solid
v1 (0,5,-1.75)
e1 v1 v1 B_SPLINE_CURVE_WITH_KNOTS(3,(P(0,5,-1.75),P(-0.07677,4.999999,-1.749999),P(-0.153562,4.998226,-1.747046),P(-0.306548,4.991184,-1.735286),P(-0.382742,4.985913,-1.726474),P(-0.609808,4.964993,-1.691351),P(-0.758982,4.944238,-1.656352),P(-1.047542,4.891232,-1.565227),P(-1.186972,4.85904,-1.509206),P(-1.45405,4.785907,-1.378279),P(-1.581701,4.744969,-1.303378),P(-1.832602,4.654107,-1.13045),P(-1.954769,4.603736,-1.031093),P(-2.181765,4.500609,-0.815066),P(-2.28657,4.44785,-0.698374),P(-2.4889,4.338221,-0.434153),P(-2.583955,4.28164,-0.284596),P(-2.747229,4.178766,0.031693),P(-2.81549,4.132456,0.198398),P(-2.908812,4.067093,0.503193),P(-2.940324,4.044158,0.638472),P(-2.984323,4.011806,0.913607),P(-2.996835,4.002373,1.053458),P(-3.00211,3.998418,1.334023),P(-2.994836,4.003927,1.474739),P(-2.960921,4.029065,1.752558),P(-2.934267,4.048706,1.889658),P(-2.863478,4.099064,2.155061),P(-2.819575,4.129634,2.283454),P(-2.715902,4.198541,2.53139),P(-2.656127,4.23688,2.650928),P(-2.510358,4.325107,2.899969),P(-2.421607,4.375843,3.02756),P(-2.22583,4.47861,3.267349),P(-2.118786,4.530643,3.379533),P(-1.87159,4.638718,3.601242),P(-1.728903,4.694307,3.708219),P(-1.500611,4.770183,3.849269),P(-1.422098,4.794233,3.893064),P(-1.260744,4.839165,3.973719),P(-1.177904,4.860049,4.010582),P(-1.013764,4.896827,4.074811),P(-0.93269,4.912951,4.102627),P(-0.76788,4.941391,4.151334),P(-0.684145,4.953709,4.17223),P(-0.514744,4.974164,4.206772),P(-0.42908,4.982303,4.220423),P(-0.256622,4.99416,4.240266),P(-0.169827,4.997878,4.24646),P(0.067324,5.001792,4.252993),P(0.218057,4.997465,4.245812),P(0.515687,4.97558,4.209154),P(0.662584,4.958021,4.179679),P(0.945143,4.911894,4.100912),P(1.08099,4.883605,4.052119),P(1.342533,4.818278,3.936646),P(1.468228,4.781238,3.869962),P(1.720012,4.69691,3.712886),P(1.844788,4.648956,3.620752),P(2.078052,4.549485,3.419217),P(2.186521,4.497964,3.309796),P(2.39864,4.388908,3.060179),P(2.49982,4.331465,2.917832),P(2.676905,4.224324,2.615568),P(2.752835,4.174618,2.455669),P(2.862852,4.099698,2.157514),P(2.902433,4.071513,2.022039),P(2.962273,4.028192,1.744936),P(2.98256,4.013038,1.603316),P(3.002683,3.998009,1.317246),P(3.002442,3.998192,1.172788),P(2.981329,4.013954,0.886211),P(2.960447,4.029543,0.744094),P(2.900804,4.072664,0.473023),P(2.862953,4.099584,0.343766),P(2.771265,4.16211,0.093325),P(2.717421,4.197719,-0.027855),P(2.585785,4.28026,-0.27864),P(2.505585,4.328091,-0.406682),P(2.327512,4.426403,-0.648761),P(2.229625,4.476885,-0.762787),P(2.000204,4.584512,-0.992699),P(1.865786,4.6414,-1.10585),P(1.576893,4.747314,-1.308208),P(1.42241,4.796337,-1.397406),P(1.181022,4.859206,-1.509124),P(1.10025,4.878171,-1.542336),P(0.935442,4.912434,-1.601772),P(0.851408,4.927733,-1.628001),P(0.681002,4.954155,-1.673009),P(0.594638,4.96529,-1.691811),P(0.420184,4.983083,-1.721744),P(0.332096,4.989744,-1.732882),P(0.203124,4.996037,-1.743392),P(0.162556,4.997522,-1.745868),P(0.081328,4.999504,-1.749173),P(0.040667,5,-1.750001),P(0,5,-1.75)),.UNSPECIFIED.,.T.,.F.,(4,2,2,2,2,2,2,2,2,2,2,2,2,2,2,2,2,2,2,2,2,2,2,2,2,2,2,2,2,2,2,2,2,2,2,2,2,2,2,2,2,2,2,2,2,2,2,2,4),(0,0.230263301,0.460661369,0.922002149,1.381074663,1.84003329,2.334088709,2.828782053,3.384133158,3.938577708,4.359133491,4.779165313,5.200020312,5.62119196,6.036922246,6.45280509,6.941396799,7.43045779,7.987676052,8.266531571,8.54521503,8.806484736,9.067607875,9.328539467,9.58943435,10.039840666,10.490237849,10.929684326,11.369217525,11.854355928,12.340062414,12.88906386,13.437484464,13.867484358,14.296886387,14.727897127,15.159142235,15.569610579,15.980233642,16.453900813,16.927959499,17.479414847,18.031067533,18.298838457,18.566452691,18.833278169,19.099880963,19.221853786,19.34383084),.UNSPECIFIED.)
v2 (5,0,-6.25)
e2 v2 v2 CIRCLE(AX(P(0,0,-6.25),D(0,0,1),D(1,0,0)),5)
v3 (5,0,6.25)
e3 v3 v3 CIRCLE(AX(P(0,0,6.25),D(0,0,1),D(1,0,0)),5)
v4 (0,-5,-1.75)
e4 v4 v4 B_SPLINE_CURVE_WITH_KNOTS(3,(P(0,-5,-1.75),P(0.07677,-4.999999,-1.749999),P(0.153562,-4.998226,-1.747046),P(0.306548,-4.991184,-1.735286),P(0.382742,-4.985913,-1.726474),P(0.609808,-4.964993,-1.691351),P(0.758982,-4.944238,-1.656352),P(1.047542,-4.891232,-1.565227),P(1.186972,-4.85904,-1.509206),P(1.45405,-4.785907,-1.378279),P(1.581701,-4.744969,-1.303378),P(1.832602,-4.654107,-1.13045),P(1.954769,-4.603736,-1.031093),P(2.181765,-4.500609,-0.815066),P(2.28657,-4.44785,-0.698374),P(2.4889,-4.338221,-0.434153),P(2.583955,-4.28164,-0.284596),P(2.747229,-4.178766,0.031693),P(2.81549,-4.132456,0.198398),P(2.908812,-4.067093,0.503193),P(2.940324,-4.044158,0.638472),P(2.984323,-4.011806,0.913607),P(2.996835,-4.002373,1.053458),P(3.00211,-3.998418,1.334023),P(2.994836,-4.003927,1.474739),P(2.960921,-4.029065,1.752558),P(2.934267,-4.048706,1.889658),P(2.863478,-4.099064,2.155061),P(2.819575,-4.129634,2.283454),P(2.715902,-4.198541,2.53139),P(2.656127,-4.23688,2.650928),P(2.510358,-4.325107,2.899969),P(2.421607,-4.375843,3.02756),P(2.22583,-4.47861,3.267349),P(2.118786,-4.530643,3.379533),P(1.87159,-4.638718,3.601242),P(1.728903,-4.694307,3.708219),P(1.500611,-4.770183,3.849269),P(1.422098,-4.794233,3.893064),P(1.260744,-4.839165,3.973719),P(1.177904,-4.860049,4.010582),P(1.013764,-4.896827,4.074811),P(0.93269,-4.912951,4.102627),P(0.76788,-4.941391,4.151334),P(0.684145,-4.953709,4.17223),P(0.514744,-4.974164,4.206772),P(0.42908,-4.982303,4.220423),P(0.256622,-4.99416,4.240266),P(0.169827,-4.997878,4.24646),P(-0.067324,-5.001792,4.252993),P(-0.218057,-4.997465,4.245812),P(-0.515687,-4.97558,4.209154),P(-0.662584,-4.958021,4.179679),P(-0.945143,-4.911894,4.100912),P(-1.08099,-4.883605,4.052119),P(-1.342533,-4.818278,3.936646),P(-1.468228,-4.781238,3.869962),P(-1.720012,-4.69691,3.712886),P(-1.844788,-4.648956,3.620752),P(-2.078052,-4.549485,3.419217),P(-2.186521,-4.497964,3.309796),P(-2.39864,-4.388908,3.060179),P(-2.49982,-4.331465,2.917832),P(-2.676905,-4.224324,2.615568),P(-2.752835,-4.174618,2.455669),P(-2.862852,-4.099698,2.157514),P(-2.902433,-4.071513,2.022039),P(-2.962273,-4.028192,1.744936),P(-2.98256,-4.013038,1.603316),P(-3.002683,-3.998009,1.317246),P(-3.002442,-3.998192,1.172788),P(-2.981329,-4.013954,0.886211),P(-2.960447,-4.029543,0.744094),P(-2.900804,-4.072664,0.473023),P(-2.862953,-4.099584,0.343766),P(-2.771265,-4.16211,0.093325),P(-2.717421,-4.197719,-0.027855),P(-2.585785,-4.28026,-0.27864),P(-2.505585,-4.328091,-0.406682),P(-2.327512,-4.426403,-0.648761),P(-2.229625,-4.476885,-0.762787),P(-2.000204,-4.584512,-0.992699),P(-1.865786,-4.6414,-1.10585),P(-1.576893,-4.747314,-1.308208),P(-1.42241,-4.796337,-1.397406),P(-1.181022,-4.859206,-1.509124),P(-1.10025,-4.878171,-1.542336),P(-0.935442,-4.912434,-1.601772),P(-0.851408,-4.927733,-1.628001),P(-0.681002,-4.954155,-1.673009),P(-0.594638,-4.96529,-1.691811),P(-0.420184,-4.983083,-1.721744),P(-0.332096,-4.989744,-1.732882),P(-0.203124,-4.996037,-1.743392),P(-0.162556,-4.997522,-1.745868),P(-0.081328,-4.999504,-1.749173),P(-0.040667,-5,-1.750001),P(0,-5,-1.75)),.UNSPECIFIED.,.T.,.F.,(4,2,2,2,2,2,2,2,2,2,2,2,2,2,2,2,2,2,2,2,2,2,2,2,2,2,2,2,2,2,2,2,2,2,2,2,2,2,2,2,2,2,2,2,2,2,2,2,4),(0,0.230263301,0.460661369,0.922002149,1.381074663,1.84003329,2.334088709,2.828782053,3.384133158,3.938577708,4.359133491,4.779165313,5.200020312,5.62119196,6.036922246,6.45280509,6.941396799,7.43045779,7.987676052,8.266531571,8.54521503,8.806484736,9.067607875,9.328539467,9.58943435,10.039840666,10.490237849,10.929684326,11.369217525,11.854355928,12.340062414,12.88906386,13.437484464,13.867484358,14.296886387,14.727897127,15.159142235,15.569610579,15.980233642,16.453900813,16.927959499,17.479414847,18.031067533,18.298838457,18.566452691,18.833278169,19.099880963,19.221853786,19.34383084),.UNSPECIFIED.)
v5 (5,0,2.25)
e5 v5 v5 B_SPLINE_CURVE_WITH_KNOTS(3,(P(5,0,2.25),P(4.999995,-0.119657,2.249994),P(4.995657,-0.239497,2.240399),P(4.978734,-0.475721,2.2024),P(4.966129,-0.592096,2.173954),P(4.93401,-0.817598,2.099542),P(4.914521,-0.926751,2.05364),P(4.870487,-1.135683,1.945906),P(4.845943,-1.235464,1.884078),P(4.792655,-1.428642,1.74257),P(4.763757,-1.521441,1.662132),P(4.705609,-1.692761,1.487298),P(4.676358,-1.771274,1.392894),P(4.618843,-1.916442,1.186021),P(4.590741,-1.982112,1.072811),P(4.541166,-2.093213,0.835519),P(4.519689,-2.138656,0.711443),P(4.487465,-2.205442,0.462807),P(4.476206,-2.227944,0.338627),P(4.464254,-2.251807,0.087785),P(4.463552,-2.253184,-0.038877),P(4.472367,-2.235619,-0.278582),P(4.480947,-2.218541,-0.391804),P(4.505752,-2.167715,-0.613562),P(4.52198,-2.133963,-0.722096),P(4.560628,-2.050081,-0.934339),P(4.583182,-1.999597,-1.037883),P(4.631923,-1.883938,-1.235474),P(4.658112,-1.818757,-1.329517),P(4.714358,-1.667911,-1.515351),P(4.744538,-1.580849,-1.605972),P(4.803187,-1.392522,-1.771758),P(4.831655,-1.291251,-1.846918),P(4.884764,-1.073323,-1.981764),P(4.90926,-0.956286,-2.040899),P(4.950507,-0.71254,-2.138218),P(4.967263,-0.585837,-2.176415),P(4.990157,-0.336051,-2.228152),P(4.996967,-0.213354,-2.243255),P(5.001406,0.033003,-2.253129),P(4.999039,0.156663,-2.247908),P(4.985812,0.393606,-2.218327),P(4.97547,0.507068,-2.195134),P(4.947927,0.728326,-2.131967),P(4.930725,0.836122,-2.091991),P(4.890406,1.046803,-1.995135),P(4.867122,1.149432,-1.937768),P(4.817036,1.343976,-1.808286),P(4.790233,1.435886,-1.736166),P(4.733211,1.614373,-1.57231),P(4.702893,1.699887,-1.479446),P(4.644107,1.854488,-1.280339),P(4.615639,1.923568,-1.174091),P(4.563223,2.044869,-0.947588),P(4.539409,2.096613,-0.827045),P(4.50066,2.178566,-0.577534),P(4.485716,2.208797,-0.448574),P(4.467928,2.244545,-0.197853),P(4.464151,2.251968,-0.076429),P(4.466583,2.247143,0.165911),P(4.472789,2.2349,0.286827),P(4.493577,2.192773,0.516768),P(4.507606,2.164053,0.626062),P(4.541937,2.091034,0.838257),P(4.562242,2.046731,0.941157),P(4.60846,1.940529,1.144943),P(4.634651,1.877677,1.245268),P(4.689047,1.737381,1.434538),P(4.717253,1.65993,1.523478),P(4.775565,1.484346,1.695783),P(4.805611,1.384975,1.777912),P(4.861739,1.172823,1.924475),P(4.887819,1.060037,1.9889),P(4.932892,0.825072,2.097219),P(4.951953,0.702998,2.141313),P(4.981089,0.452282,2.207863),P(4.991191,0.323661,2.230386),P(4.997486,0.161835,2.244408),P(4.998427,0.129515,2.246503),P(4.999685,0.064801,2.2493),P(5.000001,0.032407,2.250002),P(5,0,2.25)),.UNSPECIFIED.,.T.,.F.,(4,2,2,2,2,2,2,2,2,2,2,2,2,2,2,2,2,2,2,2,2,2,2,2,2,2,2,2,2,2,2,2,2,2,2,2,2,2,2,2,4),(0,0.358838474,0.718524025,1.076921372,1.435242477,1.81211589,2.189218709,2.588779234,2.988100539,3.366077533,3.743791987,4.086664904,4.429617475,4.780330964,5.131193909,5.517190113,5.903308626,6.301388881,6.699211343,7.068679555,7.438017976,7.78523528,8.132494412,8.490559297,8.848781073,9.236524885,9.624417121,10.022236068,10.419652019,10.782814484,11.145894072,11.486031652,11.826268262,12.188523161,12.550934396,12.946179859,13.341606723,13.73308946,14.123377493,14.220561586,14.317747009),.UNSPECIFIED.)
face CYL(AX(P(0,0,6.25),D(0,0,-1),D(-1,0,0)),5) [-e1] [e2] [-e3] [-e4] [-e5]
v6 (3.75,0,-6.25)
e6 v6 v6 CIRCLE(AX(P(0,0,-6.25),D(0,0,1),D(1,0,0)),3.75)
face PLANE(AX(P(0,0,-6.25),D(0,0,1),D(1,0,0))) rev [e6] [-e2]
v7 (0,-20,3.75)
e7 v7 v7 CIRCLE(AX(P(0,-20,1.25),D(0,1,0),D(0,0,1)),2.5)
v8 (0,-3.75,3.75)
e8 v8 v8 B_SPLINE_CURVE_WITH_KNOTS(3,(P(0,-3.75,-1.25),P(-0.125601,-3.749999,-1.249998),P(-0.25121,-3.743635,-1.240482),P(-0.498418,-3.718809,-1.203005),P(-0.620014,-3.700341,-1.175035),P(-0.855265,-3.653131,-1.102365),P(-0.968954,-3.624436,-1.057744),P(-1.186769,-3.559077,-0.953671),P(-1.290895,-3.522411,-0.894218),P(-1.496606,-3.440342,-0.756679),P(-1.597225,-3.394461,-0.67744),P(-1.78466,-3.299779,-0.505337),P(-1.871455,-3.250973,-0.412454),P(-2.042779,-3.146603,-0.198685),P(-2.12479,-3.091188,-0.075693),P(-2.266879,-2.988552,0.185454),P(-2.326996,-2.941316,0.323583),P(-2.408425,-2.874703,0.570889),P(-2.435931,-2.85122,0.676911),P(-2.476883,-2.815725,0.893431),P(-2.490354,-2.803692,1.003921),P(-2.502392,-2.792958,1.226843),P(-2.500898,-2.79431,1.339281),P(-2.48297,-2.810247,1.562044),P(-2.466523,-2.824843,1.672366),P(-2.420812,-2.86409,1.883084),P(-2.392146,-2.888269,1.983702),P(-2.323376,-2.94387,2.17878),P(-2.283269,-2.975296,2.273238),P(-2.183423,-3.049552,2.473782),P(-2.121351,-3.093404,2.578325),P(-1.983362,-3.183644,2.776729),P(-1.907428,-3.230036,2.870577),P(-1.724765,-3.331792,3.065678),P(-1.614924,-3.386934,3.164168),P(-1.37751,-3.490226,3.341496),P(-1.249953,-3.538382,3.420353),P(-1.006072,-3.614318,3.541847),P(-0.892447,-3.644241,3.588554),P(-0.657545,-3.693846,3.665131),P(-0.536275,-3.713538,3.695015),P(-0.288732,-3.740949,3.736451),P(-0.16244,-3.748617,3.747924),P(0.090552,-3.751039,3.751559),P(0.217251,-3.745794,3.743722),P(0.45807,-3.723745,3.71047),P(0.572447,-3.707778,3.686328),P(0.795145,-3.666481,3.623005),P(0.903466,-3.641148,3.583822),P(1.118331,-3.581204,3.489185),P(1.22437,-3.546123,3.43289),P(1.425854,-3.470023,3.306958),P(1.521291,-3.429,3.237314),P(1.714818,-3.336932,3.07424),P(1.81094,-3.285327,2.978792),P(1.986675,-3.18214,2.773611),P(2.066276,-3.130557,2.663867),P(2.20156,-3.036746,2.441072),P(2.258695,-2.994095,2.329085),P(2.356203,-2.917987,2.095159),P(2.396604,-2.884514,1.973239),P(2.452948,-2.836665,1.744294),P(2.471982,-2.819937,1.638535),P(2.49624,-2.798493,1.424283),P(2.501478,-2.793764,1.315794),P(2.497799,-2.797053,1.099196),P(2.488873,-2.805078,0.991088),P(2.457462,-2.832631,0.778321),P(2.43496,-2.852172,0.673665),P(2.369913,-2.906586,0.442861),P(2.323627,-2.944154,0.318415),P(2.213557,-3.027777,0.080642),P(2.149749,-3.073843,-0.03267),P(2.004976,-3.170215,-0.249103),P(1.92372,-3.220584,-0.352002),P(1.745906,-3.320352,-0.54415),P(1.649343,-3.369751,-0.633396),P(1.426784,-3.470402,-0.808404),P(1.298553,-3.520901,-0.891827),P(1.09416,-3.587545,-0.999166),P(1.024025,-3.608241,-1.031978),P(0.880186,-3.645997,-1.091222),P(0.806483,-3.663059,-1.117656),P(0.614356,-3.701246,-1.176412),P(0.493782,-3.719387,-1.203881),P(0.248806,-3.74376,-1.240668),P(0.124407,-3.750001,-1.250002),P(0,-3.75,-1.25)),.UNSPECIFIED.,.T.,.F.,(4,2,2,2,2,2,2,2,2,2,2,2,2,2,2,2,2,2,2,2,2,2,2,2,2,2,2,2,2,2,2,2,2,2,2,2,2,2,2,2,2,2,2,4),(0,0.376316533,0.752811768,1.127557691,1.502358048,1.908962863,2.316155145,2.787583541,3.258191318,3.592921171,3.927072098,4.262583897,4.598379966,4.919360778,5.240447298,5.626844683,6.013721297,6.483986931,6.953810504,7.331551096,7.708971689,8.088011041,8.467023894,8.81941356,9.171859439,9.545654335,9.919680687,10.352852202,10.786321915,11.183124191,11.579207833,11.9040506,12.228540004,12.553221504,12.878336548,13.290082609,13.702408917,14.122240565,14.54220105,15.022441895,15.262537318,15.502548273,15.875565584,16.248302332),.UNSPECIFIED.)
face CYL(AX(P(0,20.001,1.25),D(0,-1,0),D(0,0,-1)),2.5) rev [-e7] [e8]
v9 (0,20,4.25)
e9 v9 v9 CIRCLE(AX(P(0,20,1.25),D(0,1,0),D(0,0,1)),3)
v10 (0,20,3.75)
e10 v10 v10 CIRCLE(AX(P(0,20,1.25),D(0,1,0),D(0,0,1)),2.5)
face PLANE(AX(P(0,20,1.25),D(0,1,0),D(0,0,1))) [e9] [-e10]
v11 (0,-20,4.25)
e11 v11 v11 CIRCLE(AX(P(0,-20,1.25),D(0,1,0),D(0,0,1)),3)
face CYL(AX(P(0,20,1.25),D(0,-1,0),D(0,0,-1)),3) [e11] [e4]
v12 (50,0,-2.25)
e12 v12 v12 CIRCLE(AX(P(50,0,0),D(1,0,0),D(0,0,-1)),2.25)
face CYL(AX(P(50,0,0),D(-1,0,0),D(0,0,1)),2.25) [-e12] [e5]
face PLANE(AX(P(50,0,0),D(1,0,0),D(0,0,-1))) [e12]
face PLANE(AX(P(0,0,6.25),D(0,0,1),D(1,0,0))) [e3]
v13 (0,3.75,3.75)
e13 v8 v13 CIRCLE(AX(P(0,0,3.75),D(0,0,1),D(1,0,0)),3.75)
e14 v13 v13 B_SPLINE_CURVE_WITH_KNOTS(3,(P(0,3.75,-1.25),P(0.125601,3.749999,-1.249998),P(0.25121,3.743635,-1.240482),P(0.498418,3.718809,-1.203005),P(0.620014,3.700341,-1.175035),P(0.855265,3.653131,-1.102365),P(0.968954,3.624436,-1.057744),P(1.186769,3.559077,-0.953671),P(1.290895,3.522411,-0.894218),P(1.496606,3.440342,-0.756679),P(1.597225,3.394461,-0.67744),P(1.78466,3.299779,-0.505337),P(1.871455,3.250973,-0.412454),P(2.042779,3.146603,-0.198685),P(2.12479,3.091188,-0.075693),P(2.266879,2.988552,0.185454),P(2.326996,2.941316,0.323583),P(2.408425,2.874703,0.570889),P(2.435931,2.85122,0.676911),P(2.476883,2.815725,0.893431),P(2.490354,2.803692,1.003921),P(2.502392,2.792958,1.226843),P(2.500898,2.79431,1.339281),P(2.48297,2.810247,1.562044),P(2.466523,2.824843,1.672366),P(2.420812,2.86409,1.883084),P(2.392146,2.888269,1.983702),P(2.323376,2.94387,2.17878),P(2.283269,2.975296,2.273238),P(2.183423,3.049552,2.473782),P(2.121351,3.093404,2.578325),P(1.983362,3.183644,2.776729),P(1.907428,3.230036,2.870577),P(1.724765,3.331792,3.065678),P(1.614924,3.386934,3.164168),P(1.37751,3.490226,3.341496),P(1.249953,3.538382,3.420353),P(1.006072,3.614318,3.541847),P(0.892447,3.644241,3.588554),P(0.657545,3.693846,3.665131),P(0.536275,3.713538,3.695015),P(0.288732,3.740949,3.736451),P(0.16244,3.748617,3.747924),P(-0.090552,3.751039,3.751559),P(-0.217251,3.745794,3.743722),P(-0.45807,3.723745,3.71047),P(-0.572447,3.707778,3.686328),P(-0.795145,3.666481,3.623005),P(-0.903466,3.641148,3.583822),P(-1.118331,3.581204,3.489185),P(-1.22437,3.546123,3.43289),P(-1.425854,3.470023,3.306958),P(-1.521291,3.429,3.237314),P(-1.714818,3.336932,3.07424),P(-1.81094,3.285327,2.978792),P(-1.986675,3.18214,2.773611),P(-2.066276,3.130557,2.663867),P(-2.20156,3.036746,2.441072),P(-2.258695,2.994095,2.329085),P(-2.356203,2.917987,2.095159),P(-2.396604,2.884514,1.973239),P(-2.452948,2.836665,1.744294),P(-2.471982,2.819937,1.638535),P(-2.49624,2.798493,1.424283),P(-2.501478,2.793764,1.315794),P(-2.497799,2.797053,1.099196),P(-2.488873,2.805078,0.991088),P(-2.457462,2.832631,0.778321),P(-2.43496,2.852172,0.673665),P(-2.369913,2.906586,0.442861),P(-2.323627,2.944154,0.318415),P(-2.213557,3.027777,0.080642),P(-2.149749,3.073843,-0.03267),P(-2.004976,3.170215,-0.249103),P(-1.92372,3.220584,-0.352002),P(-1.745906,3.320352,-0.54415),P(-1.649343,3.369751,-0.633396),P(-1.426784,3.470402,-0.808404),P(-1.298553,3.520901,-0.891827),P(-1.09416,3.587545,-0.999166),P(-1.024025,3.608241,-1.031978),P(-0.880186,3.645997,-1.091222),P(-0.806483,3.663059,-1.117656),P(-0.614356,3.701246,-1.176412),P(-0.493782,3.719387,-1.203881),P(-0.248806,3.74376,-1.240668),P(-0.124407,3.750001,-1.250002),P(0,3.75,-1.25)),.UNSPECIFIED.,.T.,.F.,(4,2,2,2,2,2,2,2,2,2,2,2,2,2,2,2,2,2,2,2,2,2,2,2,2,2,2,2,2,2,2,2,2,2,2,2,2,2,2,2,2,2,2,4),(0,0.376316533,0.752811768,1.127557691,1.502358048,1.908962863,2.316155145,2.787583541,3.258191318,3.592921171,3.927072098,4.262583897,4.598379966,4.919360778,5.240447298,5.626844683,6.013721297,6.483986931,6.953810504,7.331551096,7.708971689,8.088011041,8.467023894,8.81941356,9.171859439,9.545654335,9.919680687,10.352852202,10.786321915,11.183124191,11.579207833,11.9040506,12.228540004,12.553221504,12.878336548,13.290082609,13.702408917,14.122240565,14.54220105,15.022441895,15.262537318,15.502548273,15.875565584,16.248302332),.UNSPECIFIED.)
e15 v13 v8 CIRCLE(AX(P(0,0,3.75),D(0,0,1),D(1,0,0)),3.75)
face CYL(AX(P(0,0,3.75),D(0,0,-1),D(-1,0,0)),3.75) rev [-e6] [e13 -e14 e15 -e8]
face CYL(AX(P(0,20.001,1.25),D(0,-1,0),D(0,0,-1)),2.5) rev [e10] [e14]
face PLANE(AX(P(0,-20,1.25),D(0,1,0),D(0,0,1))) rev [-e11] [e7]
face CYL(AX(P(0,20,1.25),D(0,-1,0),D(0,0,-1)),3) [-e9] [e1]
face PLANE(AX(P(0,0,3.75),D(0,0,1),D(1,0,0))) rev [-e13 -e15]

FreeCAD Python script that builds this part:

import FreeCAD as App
import Part
import Sketcher
from FreeCAD import Vector

doc = App.newDocument("Part")
body = doc.addObject("PartDesign::Body", "Body")

# Sketch on XY plane
sketch1 = body.newObject("Sketcher::SketchObject", "Sketch")
sketch1.AttachmentSupport = (doc.getObject("XY_Plane"), [""])
sketch1.MapMode = "FlatFace"
sketch1.addGeometry(Part.Circle(Vector(0, 0, 0), Vector(0, 0, 1), 5), False)
sketch1.addConstraint(Sketcher.Constraint("Coincident", 0, 3, -1, 1))
sketch1.addConstraint(Sketcher.Constraint("Diameter", 0, 10.0))
pad1 = body.newObject("PartDesign::Pad", "Pad")
pad1.Profile = sketch1
pad1.Length = 12.5
pad1.Midplane = True

# Sketch on XZ plane
sketch2 = body.newObject("Sketcher::SketchObject", "Sketch001")
sketch2.AttachmentSupport = (doc.getObject("XZ_Plane"), [""])
sketch2.MapMode = "FlatFace"
sketch2.addGeometry(Part.Circle(Vector(0, 1.2, 0), Vector(0, 0, 1), 3), False)
sketch2.addConstraint(Sketcher.Constraint("PointOnObject", 0, 3, -2))
sketch2.addConstraint(Sketcher.Constraint("Diameter", 0, 6.0))
sketch2.addConstraint(Sketcher.Constraint("DistanceY", -1, 1, 0, 3, 1.25))
pad2 = body.newObject("PartDesign::Pad", "Pad001")
pad2.Profile = sketch2
pad2.Length = 40
pad2.Midplane = True

# Sketch on YZ plane
sketch3 = body.newObject("Sketcher::SketchObject", "Sketch002")
sketch3.AttachmentSupport = (doc.getObject("YZ_Plane"), [""])
sketch3.MapMode = "FlatFace"
sketch3.addGeometry(Part.Circle(Vector(0, 0, 0), Vector(0, 0, 1), 2.2), False)
sketch3.addConstraint(Sketcher.Constraint("Coincident", 0, 3, -1, 1))
sketch3.addConstraint(Sketcher.Constraint("Diameter", 0, 4.5))
pad3 = body.newObject("PartDesign::Pad", "Pad002")
pad3.Profile = sketch3
pad3.Length = 50

# Sketch on XZ plane
sketch4 = body.newObject("Sketcher::SketchObject", "Sketch003")
sketch4.AttachmentSupport = (doc.getObject("XZ_Plane"), [""])
sketch4.MapMode = "FlatFace"
sketch4.AttachmentOffset = App.Placement(Vector(0, 0, 20), App.Rotation())
sketch4.addGeometry(Part.Circle(Vector(0, 1.2, 0), Vector(0, 0, 1), 2.5), False)
sketch4.addConstraint(Sketcher.Constraint("PointOnObject", 0, 3, -2))
sketch4.addConstraint(Sketcher.Constraint("Diameter", 0, 5.0))
sketch4.addConstraint(Sketcher.Constraint("DistanceY", -1, 1, 0, 3, 1.25))
pocket1 = body.newObject("PartDesign::Pocket", "Pocket")
pocket1.Profile = sketch4
pocket1.Length = 40

# Sketch on XY plane
sketch5 = body.newObject("Sketcher::SketchObject", "Sketch004")
sketch5.AttachmentSupport = (doc.getObject("XY_Plane"), [""])
sketch5.MapMode = "FlatFace"
sketch5.AttachmentOffset = App.Placement(Vector(0, 0, -6.25), App.Rotation())
sketch5.addGeometry(Part.Circle(Vector(0, 0, 0), Vector(0, 0, 1), 3.8), False)
sketch5.addConstraint(Sketcher.Constraint("Coincident", 0, 3, -1, 1))
sketch5.addConstraint(Sketcher.Constraint("Diameter", 0, 7.5))
pocket2 = body.newObject("PartDesign::Pocket", "Pocket001")
pocket2.Profile = sketch5
pocket2.Length = 10
pocket2.Reversed = True

doc.recompute()
